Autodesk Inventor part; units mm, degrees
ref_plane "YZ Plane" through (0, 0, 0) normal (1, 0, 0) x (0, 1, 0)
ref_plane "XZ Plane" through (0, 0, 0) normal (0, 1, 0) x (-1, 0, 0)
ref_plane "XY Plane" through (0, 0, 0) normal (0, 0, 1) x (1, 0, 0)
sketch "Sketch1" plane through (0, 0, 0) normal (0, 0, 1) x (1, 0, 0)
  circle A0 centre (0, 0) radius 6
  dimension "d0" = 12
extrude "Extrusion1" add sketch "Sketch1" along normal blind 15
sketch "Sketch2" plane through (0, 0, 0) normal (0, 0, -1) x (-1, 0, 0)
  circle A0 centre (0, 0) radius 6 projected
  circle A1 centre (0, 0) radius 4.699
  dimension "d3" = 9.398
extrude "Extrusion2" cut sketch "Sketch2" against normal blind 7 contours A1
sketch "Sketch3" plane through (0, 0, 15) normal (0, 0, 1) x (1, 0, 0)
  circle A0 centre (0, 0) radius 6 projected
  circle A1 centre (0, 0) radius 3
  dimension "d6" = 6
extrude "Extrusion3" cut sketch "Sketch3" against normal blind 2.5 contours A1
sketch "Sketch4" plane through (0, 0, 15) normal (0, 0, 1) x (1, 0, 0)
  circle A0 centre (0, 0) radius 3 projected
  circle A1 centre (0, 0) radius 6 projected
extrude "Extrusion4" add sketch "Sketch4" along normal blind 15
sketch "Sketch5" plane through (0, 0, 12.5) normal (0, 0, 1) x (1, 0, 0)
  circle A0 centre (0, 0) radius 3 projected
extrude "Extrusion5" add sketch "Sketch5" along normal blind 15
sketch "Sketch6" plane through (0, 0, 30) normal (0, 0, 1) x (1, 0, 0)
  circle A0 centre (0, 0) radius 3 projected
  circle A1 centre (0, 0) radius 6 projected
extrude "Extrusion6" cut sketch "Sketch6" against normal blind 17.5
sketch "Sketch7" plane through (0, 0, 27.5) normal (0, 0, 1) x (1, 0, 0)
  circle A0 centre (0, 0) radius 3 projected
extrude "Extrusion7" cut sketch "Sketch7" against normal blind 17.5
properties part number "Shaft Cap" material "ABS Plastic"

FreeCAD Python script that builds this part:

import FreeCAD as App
import Part
import Sketcher
from FreeCAD import Vector

doc = App.newDocument("Part")
body = doc.addObject("PartDesign::Body", "Body")

# Sketch on XY plane
sketch1 = body.newObject("Sketcher::SketchObject", "Sketch")
sketch1.AttachmentSupport = (doc.getObject("XY_Plane"), [""])
sketch1.MapMode = "FlatFace"
sketch1.addGeometry(Part.Circle(Vector(0, 0, 0), Vector(0, 0, 1), 6), False)
sketch1.addConstraint([
    Sketcher.Constraint("Coincident", 0, 3, -1, 1),
    Sketcher.Constraint("Diameter", 0, 12.0),
])
pad1 = body.newObject("PartDesign::Pad", "Pad")
pad1.Profile = sketch1
pad1.Length = 15

# Sketch on XY plane
sketch2 = body.newObject("Sketcher::SketchObject", "Sketch001")
sketch2.AttachmentSupport = (doc.getObject("XY_Plane"), [""])
sketch2.MapMode = "FlatFace"
sketch2.addGeometry(Part.Circle(Vector(0, 0, 0), Vector(0, 0, 1), 4.7), False)
sketch2.addConstraint([
    Sketcher.Constraint("Coincident", 0, 3, -1, 1),
    Sketcher.Constraint("Diameter", 0, 9.398),
])
pocket1 = body.newObject("PartDesign::Pocket", "Pocket")
pocket1.Profile = sketch2
pocket1.Length = 7
pocket1.Reversed = True

# Sketch on XY plane
sketch3 = body.newObject("Sketcher::SketchObject", "Sketch002")
sketch3.AttachmentSupport = (doc.getObject("XY_Plane"), [""])
sketch3.MapMode = "FlatFace"
sketch3.AttachmentOffset = App.Placement(Vector(0, 0, 15), App.Rotation())
sketch3.addGeometry(Part.Circle(Vector(0, 0, 0), Vector(0, 0, 1), 3), False)
sketch3.addConstraint([
    Sketcher.Constraint("Coincident", 0, 3, -1, 1),
    Sketcher.Constraint("Diameter", 0, 6.0),
])
pocket2 = body.newObject("PartDesign::Pocket", "Pocket001")
pocket2.Profile = sketch3
pocket2.Length = 2.5

# Sketch on XY plane
sketch4 = body.newObject("Sketcher::SketchObject", "Sketch003")
sketch4.AttachmentSupport = (doc.getObject("XY_Plane"), [""])
sketch4.MapMode = "FlatFace"
sketch4.AttachmentOffset = App.Placement(Vector(0, 0, 15), App.Rotation())
sketch4.addGeometry([
    Part.Circle(Vector(0, 0, 0), Vector(0, 0, 1), 6),
    Part.Circle(Vector(0, 0, 0), Vector(0, 0, 1), 3),
], False)
sketch4.addConstraint([
    Sketcher.Constraint("Coincident", 0, 3, -1, 1),
    Sketcher.Constraint("Coincident", 1, 3, -1, 1),
    Sketcher.Constraint("Diameter", 0, 12.0),
    Sketcher.Constraint("Diameter", 1, 6.0),
])
pad2 = body.newObject("PartDesign::Pad", "Pad001")
pad2.Profile = sketch4
pad2.Length = 15

# Sketch on XY plane
sketch5 = body.newObject("Sketcher::SketchObject", "Sketch004")
sketch5.AttachmentSupport = (doc.getObject("XY_Plane"), [""])
sketch5.MapMode = "FlatFace"
sketch5.AttachmentOffset = App.Placement(Vector(0, 0, 12.5), App.Rotation())
sketch5.addGeometry(Part.Circle(Vector(0, 0, 0), Vector(0, 0, 1), 3), False)
sketch5.addConstraint([
    Sketcher.Constraint("Coincident", 0, 3, -1, 1),
    Sketcher.Constraint("Diameter", 0, 6.0),
])
pad3 = body.newObject("PartDesign::Pad", "Pad002")
pad3.Profile = sketch5
pad3.Length = 15

# Sketch on XY plane
sketch6 = body.newObject("Sketcher::SketchObject", "Sketch005")
sketch6.AttachmentSupport = (doc.getObject("XY_Plane"), [""])
sketch6.MapMode = "FlatFace"
sketch6.AttachmentOffset = App.Placement(Vector(0, 0, 30), App.Rotation())
sketch6.addGeometry([
    Part.Circle(Vector(0, 0, 0), Vector(0, 0, 1), 6),
    Part.Circle(Vector(0, 0, 0), Vector(0, 0, 1), 3),
], False)
sketch6.addConstraint([
    Sketcher.Constraint("Coincident", 0, 3, -1, 1),
    Sketcher.Constraint("Coincident", 1, 3, -1, 1),
    Sketcher.Constraint("Diameter", 0, 12.0),
    Sketcher.Constraint("Diameter", 1, 6.0),
])
pocket3 = body.newObject("PartDesign::Pocket", "Pocket002")
pocket3.Profile = sketch6
pocket3.Length = 17.5

# Sketch on XY plane
sketch7 = body.newObject("Sketcher::SketchObject", "Sketch006")
sketch7.AttachmentSupport = (doc.getObject("XY_Plane"), [""])
sketch7.MapMode = "FlatFace"
sketch7.AttachmentOffset = App.Placement(Vector(0, 0, 27.5), App.Rotation())
sketch7.addGeometry(Part.Circle(Vector(0, 0, 0), Vector(0, 0, 1), 3), False)
sketch7.addConstraint([
    Sketcher.Constraint("Coincident", 0, 3, -1, 1),
    Sketcher.Constraint("Diameter", 0, 6.0),
])
pocket4 = body.newObject("PartDesign::Pocket", "Pocket003")
pocket4.Profile = sketch7
pocket4.Length = 17.5

doc.recompute()
